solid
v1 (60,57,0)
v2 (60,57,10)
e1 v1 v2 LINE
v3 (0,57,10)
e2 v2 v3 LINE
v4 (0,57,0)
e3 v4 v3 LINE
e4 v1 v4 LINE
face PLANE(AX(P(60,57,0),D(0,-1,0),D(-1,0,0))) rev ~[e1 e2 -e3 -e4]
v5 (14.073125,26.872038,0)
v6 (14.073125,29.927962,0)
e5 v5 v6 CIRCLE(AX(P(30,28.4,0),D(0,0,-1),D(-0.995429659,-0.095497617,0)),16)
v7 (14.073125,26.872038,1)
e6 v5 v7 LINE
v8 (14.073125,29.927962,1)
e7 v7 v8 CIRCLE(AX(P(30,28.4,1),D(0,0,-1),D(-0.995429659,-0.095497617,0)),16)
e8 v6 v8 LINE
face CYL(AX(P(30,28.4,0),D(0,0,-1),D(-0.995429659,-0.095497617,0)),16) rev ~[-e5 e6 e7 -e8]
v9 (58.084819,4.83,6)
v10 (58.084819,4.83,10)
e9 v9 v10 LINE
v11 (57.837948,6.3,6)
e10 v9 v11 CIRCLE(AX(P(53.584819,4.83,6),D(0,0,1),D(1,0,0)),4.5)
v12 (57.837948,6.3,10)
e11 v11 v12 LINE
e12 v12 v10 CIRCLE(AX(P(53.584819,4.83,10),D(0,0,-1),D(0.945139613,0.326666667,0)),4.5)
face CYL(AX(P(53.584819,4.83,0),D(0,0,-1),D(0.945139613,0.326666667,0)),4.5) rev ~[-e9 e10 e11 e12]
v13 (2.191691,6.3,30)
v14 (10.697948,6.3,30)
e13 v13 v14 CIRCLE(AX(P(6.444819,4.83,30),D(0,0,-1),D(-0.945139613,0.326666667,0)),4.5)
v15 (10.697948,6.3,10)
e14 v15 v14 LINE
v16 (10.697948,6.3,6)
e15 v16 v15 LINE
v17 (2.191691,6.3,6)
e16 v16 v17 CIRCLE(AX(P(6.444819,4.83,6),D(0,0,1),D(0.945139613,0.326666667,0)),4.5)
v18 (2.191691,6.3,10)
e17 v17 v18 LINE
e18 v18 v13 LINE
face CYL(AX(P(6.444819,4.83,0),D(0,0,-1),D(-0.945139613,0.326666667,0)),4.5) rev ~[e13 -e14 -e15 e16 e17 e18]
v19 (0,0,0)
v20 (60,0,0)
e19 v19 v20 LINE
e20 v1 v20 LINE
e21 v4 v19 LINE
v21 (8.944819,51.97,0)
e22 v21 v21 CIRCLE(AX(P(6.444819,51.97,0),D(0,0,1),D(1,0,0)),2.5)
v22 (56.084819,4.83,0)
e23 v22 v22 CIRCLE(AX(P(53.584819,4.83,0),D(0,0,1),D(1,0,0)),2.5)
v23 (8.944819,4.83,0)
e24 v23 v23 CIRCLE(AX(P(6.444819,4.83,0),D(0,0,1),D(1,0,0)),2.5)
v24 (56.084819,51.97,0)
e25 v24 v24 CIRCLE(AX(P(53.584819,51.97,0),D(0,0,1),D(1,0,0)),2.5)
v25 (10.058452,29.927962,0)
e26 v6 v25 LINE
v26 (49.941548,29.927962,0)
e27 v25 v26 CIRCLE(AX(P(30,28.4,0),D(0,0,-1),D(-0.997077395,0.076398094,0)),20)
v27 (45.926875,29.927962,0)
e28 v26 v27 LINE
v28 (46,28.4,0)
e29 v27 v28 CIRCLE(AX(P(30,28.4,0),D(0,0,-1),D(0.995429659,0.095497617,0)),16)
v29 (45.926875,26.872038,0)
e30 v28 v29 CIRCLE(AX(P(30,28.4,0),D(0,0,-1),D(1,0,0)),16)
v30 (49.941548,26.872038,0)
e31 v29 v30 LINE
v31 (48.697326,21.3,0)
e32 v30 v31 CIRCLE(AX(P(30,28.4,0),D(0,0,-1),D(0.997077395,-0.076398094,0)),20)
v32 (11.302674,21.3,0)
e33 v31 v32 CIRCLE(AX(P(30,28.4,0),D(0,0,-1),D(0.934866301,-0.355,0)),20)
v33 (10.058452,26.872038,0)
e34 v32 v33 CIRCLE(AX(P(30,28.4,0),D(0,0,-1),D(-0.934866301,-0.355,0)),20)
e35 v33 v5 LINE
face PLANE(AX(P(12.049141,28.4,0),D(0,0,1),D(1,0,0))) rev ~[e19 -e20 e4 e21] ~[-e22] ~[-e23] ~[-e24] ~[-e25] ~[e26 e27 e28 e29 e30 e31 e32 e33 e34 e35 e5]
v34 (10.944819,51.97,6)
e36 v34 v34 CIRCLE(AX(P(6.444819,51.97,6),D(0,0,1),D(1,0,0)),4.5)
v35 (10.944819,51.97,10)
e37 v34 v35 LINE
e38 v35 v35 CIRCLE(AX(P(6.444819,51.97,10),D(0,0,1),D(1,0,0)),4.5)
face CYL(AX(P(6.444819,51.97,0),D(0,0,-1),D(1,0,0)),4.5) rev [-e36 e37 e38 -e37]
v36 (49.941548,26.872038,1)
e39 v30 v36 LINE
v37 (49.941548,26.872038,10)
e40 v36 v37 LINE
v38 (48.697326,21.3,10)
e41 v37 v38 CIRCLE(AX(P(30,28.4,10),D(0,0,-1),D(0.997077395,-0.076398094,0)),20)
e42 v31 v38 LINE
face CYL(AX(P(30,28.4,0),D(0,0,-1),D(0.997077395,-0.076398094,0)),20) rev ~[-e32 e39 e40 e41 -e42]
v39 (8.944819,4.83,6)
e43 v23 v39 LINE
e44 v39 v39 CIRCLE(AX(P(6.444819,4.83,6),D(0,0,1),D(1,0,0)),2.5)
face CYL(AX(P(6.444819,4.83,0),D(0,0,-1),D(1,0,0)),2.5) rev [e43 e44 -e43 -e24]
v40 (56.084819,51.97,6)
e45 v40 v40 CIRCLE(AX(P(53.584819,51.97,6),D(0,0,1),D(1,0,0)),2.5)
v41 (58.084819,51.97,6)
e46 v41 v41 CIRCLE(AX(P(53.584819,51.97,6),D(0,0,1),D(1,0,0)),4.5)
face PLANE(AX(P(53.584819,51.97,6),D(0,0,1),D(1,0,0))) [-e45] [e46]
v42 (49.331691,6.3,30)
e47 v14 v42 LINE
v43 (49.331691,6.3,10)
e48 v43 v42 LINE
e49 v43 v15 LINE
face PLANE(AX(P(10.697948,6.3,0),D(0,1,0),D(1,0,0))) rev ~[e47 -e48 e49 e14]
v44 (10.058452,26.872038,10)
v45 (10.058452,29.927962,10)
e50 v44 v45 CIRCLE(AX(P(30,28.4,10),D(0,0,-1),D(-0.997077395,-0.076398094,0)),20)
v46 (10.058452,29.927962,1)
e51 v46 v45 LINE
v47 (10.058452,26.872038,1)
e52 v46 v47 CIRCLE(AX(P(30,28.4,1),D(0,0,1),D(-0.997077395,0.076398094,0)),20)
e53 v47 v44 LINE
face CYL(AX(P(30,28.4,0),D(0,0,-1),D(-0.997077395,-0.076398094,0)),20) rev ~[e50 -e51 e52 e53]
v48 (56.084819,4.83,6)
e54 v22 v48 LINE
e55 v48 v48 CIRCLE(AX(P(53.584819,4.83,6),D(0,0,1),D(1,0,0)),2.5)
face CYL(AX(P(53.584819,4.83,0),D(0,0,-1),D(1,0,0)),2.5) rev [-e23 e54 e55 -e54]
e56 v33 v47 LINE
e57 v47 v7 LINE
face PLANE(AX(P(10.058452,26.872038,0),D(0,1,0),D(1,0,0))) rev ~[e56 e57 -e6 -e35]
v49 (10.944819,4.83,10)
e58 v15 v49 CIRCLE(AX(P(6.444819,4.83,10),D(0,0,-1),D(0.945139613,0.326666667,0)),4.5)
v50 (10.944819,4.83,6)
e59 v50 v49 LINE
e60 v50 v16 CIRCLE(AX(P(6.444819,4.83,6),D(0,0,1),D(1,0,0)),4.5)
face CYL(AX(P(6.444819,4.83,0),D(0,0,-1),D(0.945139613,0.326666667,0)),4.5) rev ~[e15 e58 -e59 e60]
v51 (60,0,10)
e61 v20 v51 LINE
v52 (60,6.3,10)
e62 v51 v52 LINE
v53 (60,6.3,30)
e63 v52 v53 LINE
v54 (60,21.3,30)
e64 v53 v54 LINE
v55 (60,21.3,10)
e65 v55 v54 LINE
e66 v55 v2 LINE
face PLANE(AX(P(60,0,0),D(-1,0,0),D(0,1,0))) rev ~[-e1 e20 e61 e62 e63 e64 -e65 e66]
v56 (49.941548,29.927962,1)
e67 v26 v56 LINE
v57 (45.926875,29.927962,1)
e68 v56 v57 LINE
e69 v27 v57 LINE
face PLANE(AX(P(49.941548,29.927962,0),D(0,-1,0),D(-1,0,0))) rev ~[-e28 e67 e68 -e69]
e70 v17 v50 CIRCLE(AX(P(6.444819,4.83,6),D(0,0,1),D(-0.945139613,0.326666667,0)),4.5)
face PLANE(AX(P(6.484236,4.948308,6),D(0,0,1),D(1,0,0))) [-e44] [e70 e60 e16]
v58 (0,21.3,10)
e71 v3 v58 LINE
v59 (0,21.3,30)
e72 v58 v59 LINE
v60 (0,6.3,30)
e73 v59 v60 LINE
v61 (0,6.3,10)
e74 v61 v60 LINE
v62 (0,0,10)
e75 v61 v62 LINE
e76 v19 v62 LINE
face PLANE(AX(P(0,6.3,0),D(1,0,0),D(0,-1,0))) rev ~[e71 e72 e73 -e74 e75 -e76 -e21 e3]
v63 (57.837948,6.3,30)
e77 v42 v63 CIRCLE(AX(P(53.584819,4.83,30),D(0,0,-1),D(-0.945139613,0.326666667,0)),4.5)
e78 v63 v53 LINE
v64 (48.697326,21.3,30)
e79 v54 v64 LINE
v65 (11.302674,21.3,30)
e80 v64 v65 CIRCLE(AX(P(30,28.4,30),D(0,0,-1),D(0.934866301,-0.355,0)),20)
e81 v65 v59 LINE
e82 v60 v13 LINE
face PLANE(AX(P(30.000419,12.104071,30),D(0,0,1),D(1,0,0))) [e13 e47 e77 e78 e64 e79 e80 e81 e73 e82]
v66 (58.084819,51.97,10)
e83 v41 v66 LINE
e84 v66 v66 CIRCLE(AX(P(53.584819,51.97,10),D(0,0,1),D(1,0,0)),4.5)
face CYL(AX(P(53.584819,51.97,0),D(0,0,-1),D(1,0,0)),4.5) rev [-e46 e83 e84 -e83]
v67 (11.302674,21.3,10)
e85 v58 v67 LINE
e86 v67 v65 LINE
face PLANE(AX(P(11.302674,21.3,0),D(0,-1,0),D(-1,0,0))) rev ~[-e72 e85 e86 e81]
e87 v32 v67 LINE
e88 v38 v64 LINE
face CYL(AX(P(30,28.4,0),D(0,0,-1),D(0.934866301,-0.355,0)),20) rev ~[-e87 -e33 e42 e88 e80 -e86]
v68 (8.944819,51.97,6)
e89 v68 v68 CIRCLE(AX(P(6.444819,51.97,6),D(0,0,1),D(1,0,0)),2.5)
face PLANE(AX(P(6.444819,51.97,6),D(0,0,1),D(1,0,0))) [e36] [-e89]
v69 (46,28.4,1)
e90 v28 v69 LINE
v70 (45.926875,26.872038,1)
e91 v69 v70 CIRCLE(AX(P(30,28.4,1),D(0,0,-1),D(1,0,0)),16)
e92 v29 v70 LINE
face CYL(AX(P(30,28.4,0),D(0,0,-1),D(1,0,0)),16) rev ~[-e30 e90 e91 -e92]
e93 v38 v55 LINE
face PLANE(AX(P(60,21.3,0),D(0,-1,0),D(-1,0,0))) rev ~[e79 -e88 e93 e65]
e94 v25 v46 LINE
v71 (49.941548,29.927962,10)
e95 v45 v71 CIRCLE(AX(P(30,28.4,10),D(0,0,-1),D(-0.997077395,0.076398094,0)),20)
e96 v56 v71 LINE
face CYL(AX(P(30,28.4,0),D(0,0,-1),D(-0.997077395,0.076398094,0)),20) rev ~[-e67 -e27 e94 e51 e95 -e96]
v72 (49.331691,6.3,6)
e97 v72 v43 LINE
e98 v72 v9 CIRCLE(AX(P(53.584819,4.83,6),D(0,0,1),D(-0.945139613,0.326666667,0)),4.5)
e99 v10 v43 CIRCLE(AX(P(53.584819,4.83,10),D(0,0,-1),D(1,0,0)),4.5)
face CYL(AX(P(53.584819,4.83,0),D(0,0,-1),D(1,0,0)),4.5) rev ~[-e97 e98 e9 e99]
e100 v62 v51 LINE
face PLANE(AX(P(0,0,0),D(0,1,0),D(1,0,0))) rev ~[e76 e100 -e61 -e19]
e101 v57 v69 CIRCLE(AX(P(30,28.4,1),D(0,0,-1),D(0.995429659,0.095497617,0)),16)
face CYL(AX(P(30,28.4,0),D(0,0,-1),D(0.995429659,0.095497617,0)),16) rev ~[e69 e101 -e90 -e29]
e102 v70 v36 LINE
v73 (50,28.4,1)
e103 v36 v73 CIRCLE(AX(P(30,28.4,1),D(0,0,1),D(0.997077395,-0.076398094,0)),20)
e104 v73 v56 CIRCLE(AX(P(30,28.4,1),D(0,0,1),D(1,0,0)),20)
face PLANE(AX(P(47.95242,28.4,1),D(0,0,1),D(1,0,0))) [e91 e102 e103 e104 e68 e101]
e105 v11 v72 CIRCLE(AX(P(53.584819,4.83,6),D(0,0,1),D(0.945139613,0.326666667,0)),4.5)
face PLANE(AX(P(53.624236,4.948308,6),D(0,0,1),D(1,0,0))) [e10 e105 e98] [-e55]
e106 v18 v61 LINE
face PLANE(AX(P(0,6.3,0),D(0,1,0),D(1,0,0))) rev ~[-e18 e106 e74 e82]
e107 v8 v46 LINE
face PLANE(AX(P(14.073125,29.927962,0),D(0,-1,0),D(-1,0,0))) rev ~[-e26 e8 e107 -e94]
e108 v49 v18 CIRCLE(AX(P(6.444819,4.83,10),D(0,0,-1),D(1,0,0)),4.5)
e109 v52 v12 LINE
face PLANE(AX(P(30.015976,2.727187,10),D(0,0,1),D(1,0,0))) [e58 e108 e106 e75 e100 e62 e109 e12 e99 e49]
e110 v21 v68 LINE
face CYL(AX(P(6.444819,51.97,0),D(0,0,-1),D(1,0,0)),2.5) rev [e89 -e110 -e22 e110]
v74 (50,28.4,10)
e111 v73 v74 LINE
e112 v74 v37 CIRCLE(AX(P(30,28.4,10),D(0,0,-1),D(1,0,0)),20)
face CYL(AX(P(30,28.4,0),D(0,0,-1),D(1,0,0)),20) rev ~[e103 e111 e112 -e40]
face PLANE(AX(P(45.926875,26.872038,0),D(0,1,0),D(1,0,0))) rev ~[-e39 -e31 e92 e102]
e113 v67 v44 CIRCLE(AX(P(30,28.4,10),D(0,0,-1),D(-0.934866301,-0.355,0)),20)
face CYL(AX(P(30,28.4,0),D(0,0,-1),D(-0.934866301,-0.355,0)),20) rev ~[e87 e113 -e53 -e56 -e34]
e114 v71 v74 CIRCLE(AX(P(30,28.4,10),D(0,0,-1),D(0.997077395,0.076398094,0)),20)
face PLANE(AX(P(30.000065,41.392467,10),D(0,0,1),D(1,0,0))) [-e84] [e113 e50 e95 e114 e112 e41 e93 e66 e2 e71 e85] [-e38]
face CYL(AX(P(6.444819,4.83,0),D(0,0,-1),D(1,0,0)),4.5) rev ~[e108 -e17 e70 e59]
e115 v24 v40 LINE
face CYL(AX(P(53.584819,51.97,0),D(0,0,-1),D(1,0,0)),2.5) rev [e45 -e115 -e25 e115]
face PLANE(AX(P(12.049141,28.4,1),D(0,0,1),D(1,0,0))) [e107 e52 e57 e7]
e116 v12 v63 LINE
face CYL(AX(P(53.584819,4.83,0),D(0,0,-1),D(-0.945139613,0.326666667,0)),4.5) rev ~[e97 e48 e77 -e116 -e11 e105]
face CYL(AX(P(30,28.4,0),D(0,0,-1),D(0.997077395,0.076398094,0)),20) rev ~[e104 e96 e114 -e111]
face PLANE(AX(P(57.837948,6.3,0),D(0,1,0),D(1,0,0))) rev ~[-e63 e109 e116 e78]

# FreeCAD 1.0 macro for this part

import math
import FreeCAD as App
import Part
import Sketcher
Q = App.Units.Quantity

doc = App.newDocument("Part")
params = doc.addObject("Spreadsheet::Sheet", "Params")
for row, (alias, value) in enumerate([
    ("sketch1_diameter", "9 mm"),
    ("sketch1_radius", "20 mm"),
    ("sketch1_width", "60 mm"),
    ("sketch1_height", "35.7 mm"),
    ("pad1_length", "10 mm"),
    ("sketch2_radius", "20 mm"),
    ("sketch2_radius2", "4.5 mm"),
    ("sketch2_height", "15 mm"),
    ("pad2_length", "30 mm"),
    ("sketch3_radius", "4.5 mm"),
    ("sketch3_width", "60 mm"),
    ("sketch3_height", "6.3 mm"),
    ("pad3_length", "10 mm"),
    ("sketch4_diameter", "5 mm"),
    ("sketch4_radius", "4.5 mm"),
    ("pad4_length", "6 mm"),
    ("sketch5_diameter", "5 mm"),
    ("sketch5_radius", "4.5 mm"),
    ("pad5_length", "6 mm"),
    ("sketch6_diameter", "9 mm"),
    ("sketch6_diameter2", "5 mm"),
    ("pad6_length", "6 mm"),
    ("sketch7_radius", "20 mm"),
    ("sketch7_radius2", "16 mm"),
    ("pad7_length", "1 mm"),
], start=1):
    params.set(f"A{row}", alias)
    params.set(f"B{row}", "=" + value)
    params.setAlias(f"B{row}", alias)

body = doc.addObject("PartDesign::Body", "Body")

sketch1 = body.newObject("Sketcher::SketchObject", "Sketch")
sketch1.AttachmentSupport = (doc.getObject("XY_Plane"), [""])
sketch1.MapMode = "FlatFace"
sketch1.addGeometry(Part.LineSegment(App.Vector(0, 57, 0), App.Vector(0, 21.3, 0)), False)
sketch1.addGeometry(Part.LineSegment(App.Vector(0, 21.3, 0), App.Vector(11.302674, 21.3, 0)), False)
sketch1.addGeometry(Part.ArcOfCircle(Part.Circle(App.Vector(30, 28.4, 0), App.Vector(0, 0, 1), 20), math.radians(-175.618442), math.radians(-159.206556)), False)
sketch1.addGeometry(Part.ArcOfCircle(Part.Circle(App.Vector(30, 28.4, 0), App.Vector(0, 0, 1), 20), math.radians(175.618442), math.radians(184.381558)), False)
sketch1.addGeometry(Part.ArcOfCircle(Part.Circle(App.Vector(30, 28.4, 0), App.Vector(0, 0, 1), 20), math.radians(4.381558), math.radians(175.618442)), False)
sketch1.addGeometry(Part.ArcOfCircle(Part.Circle(App.Vector(30, 28.4, 0), App.Vector(0, 0, 1), 20), math.radians(0), math.radians(4.381558)), False)
sketch1.addGeometry(Part.ArcOfCircle(Part.Circle(App.Vector(30, 28.4, 0), App.Vector(0, 0, 1), 20), math.radians(-4.381558), math.radians(0)), False)
sketch1.addGeometry(Part.ArcOfCircle(Part.Circle(App.Vector(30, 28.4, 0), App.Vector(0, 0, 1), 20), math.radians(-20.793444), math.radians(-4.381558)), False)
sketch1.addGeometry(Part.LineSegment(App.Vector(48.697326, 21.3, 0), App.Vector(60, 21.3, 0)), False)
sketch1.addGeometry(Part.LineSegment(App.Vector(60, 21.3, 0), App.Vector(60, 57, 0)), False)
sketch1.addGeometry(Part.LineSegment(App.Vector(60, 57, 0), App.Vector(0, 57, 0)), False)
sketch1.addGeometry(Part.Circle(App.Vector(6.444819, 51.97, 0), App.Vector(0, 0, 1), 4.5), False)
sketch1.addGeometry(Part.Circle(App.Vector(53.584819, 51.97, 0), App.Vector(0, 0, 1), 4.5), False)
sketch1.addConstraint(Sketcher.Constraint("Coincident", 0, 2, 1, 1))
sketch1.addConstraint(Sketcher.Constraint("Coincident", 1, 2, 2, 2))
sketch1.addConstraint(Sketcher.Constraint("Tangent", 2, 1, 3, 2))
sketch1.addConstraint(Sketcher.Constraint("Tangent", 3, 1, 4, 2))
sketch1.addConstraint(Sketcher.Constraint("Tangent", 4, 1, 5, 2))
sketch1.addConstraint(Sketcher.Constraint("Tangent", 5, 1, 6, 2))
sketch1.addConstraint(Sketcher.Constraint("Tangent", 6, 1, 7, 2))
sketch1.addConstraint(Sketcher.Constraint("Coincident", 7, 1, 8, 1))
sketch1.addConstraint(Sketcher.Constraint("Coincident", 8, 2, 9, 1))
sketch1.addConstraint(Sketcher.Constraint("Coincident", 9, 2, 10, 1))
sketch1.addConstraint(Sketcher.Constraint("Coincident", 10, 2, 0, 1))
sketch1.addConstraint(Sketcher.Constraint("Vertical", 0))
sketch1.addConstraint(Sketcher.Constraint("Horizontal", 1))
sketch1.addConstraint(Sketcher.Constraint("Horizontal", 8))
sketch1.addConstraint(Sketcher.Constraint("Vertical", 9))
sketch1.addConstraint(Sketcher.Constraint("Horizontal", 10))
sketch1.addConstraint(Sketcher.Constraint("Coincident", 4, 3, 2, 3))
sketch1.addConstraint(Sketcher.Constraint("Coincident", 6, 3, 2, 3))
sketch1.addConstraint(Sketcher.Constraint("Equal", 6, 7))
sketch1.addConstraint(Sketcher.Constraint("Equal", 11, 12))
sketch1.addConstraint(Sketcher.Constraint("PointOnObject", 0, 2, -2))
sketch1.addConstraint(Sketcher.Constraint("Horizontal", 11, 3, 12, 3))
sketch1.addConstraint(Sketcher.Constraint("Horizontal", 3, 1, 4, 1))
sketch1.addConstraint(Sketcher.Constraint("Horizontal", 7, 3, 5, 1))
sketch1.addConstraint(Sketcher.Constraint("Horizontal", 2, 1, 6, 1))
sketch1.addConstraint(Sketcher.Constraint("Horizontal", 1, 2, 7, 1))
sketch1.addConstraint(Sketcher.Constraint("Vertical", 2, 1, 3, 1))
sketch1.addConstraint(Sketcher.Constraint("Equal", 1, 8))
sketch1.addConstraint(Sketcher.Constraint("Diameter", 11, Q("9 mm")))
sketch1.addConstraint(Sketcher.Constraint("Radius", 2, Q("20 mm")))
sketch1.addConstraint(Sketcher.Constraint("DistanceX", 10, 2, 10, 1, Q("60 mm")))
sketch1.addConstraint(Sketcher.Constraint("DistanceY", 0, 2, 0, 1, Q("35.7 mm")))
sketch1.addConstraint(Sketcher.Constraint("DistanceY", -1, 1, 9, 2, Q("57 mm")))
sketch1.addConstraint(Sketcher.Constraint("DistanceY", -1, 1, 2, 3, Q("28.4 mm")))
sketch1.addConstraint(Sketcher.Constraint("DistanceY", -1, 1, 11, 3, Q("51.97 mm")))
sketch1.addConstraint(Sketcher.Constraint("DistanceX", -1, 1, 11, 3, Q("6.444819 mm")))
sketch1.addConstraint(Sketcher.Constraint("DistanceX", -1, 1, 12, 3, Q("53.584819 mm")))
sketch1.addConstraint(Sketcher.Constraint("DistanceY", -1, 1, 2, 1, Q("26.872038 mm")))
sketch1.setExpression("Constraints[28]", "Params.sketch1_diameter")
sketch1.setExpression("Constraints[29]", "Params.sketch1_radius")
sketch1.setExpression("Constraints[30]", "Params.sketch1_width")
sketch1.setExpression("Constraints[31]", "Params.sketch1_height")
pad1 = body.newObject("PartDesign::Pad", "Pad")
pad1.Profile = sketch1
pad1.setExpression("Length", "Params.pad1_length")

sketch2 = body.newObject("Sketcher::SketchObject", "Sketch001")
sketch2.AttachmentSupport = (doc.getObject("XY_Plane"), [""])
sketch2.MapMode = "FlatFace"
sketch2.addGeometry(Part.LineSegment(App.Vector(0, 21.3, 0), App.Vector(0, 6.3, 0)), False)
sketch2.addGeometry(Part.LineSegment(App.Vector(0, 6.3, 0), App.Vector(2.191691, 6.3, 0)), False)
sketch2.addGeometry(Part.ArcOfCircle(Part.Circle(App.Vector(6.444819, 4.83, 0), App.Vector(0, 0, 1), 4.5), math.radians(19.06658), math.radians(160.93342)), False)
sketch2.addGeometry(Part.LineSegment(App.Vector(10.697948, 6.3, 0), App.Vector(49.331691, 6.3, 0)), False)
sketch2.addGeometry(Part.ArcOfCircle(Part.Circle(App.Vector(53.584819, 4.83, 0), App.Vector(0, 0, 1), 4.5), math.radians(19.06658), math.radians(160.93342)), False)
sketch2.addGeometry(Part.LineSegment(App.Vector(57.837948, 6.3, 0), App.Vector(60, 6.3, 0)), False)
sketch2.addGeometry(Part.LineSegment(App.Vector(60, 6.3, 0), App.Vector(60, 21.3, 0)), False)
sketch2.addGeometry(Part.LineSegment(App.Vector(60, 21.3, 0), App.Vector(48.697326, 21.3, 0)), False)
sketch2.addGeometry(Part.ArcOfCircle(Part.Circle(App.Vector(30, 28.4, 0), App.Vector(0, 0, 1), 20), math.radians(-159.206556), math.radians(-20.793444)), False)
sketch2.addGeometry(Part.LineSegment(App.Vector(11.302674, 21.3, 0), App.Vector(0, 21.3, 0)), False)
sketch2.addConstraint(Sketcher.Constraint("Coincident", 0, 2, 1, 1))
sketch2.addConstraint(Sketcher.Constraint("Coincident", 1, 2, 2, 2))
sketch2.addConstraint(Sketcher.Constraint("Coincident", 2, 1, 3, 1))
sketch2.addConstraint(Sketcher.Constraint("Coincident", 3, 2, 4, 2))
sketch2.addConstraint(Sketcher.Constraint("Coincident", 4, 1, 5, 1))
sketch2.addConstraint(Sketcher.Constraint("Coincident", 5, 2, 6, 1))
sketch2.addConstraint(Sketcher.Constraint("Coincident", 6, 2, 7, 1))
sketch2.addConstraint(Sketcher.Constraint("Coincident", 7, 2, 8, 2))
sketch2.addConstraint(Sketcher.Constraint("Coincident", 8, 1, 9, 1))
sketch2.addConstraint(Sketcher.Constraint("Coincident", 9, 2, 0, 1))
sketch2.addConstraint(Sketcher.Constraint("Vertical", 0))
sketch2.addConstraint(Sketcher.Constraint("Horizontal", 1))
sketch2.addConstraint(Sketcher.Constraint("Horizontal", 3))
sketch2.addConstraint(Sketcher.Constraint("Horizontal", 5))
sketch2.addConstraint(Sketcher.Constraint("Vertical", 6))
sketch2.addConstraint(Sketcher.Constraint("Horizontal", 7))
sketch2.addConstraint(Sketcher.Constraint("Horizontal", 9))
sketch2.addConstraint(Sketcher.Constraint("Equal", 2, 4))
sketch2.addConstraint(Sketcher.Constraint("PointOnObject", 0, 2, -2))
sketch2.addConstraint(Sketcher.Constraint("Horizontal", 2, 3, 4, 3))
sketch2.addConstraint(Sketcher.Constraint("Horizontal", 1, 2, 2, 1))
sketch2.addConstraint(Sketcher.Constraint("Horizontal", 3, 2, 4, 1))
sketch2.addConstraint(Sketcher.Constraint("Horizontal", 7, 2, 8, 1))
sketch2.addConstraint(Sketcher.Constraint("Equal", 7, 9))
sketch2.addConstraint(Sketcher.Constraint("Radius", 8, Q("20 mm")))
sketch2.addConstraint(Sketcher.Constraint("Radius", 2, Q("4.5 mm")))
sketch2.addConstraint(Sketcher.Constraint("DistanceY", 0, 2, 0, 1, Q("15 mm")))
sketch2.addConstraint(Sketcher.Constraint("DistanceX", -1, 1, 8, 3, Q("30 mm")))
sketch2.addConstraint(Sketcher.Constraint("DistanceY", -1, 1, 8, 3, Q("28.4 mm")))
sketch2.addConstraint(Sketcher.Constraint("DistanceY", -1, 1, 0, 2, Q("6.3 mm")))
sketch2.addConstraint(Sketcher.Constraint("DistanceY", -1, 1, 2, 3, Q("4.83 mm")))
sketch2.addConstraint(Sketcher.Constraint("DistanceX", 2, 3, 4, 3, Q("47.14 mm")))
sketch2.addConstraint(Sketcher.Constraint("DistanceX", 1, 1, 1, 2, Q("2.191691 mm")))
sketch2.setExpression("Constraints[24]", "Params.sketch2_radius")
sketch2.setExpression("Constraints[25]", "Params.sketch2_radius2")
sketch2.setExpression("Constraints[26]", "Params.sketch2_height")
pad2 = body.newObject("PartDesign::Pad", "Pad001")
pad2.Profile = sketch2
pad2.setExpression("Length", "Params.pad2_length")

sketch3 = body.newObject("Sketcher::SketchObject", "Sketch002")
sketch3.AttachmentSupport = (doc.getObject("XY_Plane"), [""])
sketch3.MapMode = "FlatFace"
sketch3.addGeometry(Part.LineSegment(App.Vector(0, 6.3, 0), App.Vector(0, 0, 0)), False)
sketch3.addGeometry(Part.LineSegment(App.Vector(0, 0, 0), App.Vector(60, 0, 0)), False)
sketch3.addGeometry(Part.LineSegment(App.Vector(60, 0, 0), App.Vector(60, 6.3, 0)), False)
sketch3.addGeometry(Part.LineSegment(App.Vector(60, 6.3, 0), App.Vector(57.837948, 6.3, 0)), False)
sketch3.addGeometry(Part.ArcOfCircle(Part.Circle(App.Vector(53.584819, 4.83, 0), App.Vector(0, 0, 1), 4.5), math.radians(0), math.radians(19.06658)), False)
sketch3.addGeometry(Part.ArcOfCircle(Part.Circle(App.Vector(53.584819, 4.83, 0), App.Vector(0, 0, 1), 4.5), math.radians(160.93342), math.radians(360)), False)
sketch3.addGeometry(Part.LineSegment(App.Vector(49.331691, 6.3, 0), App.Vector(10.697948, 6.3, 0)), False)
sketch3.addGeometry(Part.ArcOfCircle(Part.Circle(App.Vector(6.444819, 4.83, 0), App.Vector(0, 0, 1), 4.5), math.radians(0), math.radians(19.06658)), False)
sketch3.addGeometry(Part.ArcOfCircle(Part.Circle(App.Vector(6.444819, 4.83, 0), App.Vector(0, 0, 1), 4.5), math.radians(160.93342), math.radians(360)), False)
sketch3.addGeometry(Part.LineSegment(App.Vector(2.191691, 6.3, 0), App.Vector(0, 6.3, 0)), False)
sketch3.addConstraint(Sketcher.Constraint("Coincident", 0, 2, 1, 1))
sketch3.addConstraint(Sketcher.Constraint("Coincident", 1, 2, 2, 1))
sketch3.addConstraint(Sketcher.Constraint("Coincident", 2, 2, 3, 1))
sketch3.addConstraint(Sketcher.Constraint("Coincident", 3, 2, 4, 2))
sketch3.addConstraint(Sketcher.Constraint("Tangent", 4, 1, 5, 2))
sketch3.addConstraint(Sketcher.Constraint("Coincident", 5, 1, 6, 1))
sketch3.addConstraint(Sketcher.Constraint("Coincident", 6, 2, 7, 2))
sketch3.addConstraint(Sketcher.Constraint("Tangent", 7, 1, 8, 2))
sketch3.addConstraint(Sketcher.Constraint("Coincident", 8, 1, 9, 1))
sketch3.addConstraint(Sketcher.Constraint("Coincident", 9, 2, 0, 1))
sketch3.addConstraint(Sketcher.Constraint("Vertical", 0))
sketch3.addConstraint(Sketcher.Constraint("Horizontal", 1))
sketch3.addConstraint(Sketcher.Constraint("Vertical", 2))
sketch3.addConstraint(Sketcher.Constraint("Horizontal", 3))
sketch3.addConstraint(Sketcher.Constraint("Horizontal", 6))
sketch3.addConstraint(Sketcher.Constraint("Horizontal", 9))
sketch3.addConstraint(Sketcher.Constraint("Coincident", 0, 2, -1, 1))
sketch3.addConstraint(Sketcher.Constraint("Equal", 4, 5))
sketch3.addConstraint(Sketcher.Constraint("Equal", 5, 7))
sketch3.addConstraint(Sketcher.Constraint("Equal", 7, 8))
sketch3.addConstraint(Sketcher.Constraint("Horizontal", 5, 3, 7, 3))
sketch3.addConstraint(Sketcher.Constraint("Horizontal", 8, 3, 4, 1))
sketch3.addConstraint(Sketcher.Constraint("Horizontal", 3, 2, 5, 1))
sketch3.addConstraint(Sketcher.Constraint("Horizontal", 4, 1, 7, 1))
sketch3.addConstraint(Sketcher.Constraint("Horizontal", 6, 2, 8, 1))
sketch3.addConstraint(Sketcher.Constraint("Radius", 4, Q("4.5 mm")))
sketch3.addConstraint(Sketcher.Constraint("DistanceX", 1, 1, 1, 2, Q("60 mm")))
sketch3.addConstraint(Sketcher.Constraint("DistanceY", 0, 2, 0, 1, Q("6.3 mm")))
sketch3.addConstraint(Sketcher.Constraint("DistanceY", -1, 1, 4, 3, Q("4.83 mm")))
sketch3.addConstraint(Sketcher.Constraint("DistanceX", 7, 3, 4, 3, Q("47.14 mm")))
sketch3.addConstraint(Sketcher.Constraint("DistanceX", 9, 2, 9, 1, Q("2.191691 mm")))
sketch3.setExpression("Constraints[25]", "Params.sketch3_radius")
sketch3.setExpression("Constraints[26]", "Params.sketch3_width")
sketch3.setExpression("Constraints[27]", "Params.sketch3_height")
pad3 = body.newObject("PartDesign::Pad", "Pad002")
pad3.Profile = sketch3
pad3.setExpression("Length", "Params.pad3_length")

sketch4 = body.newObject("Sketcher::SketchObject", "Sketch003")
sketch4.AttachmentSupport = (doc.getObject("XY_Plane"), [""])
sketch4.MapMode = "FlatFace"
sketch4.addGeometry(Part.ArcOfCircle(Part.Circle(App.Vector(6.444819, 4.83, 0), App.Vector(0, 0, 1), 4.5), math.radians(19.06658), math.radians(160.93342)), False)
sketch4.addGeometry(Part.ArcOfCircle(Part.Circle(App.Vector(6.444819, 4.83, 0), App.Vector(0, 0, 1), 4.5), math.radians(160.93342), math.radians(360)), False)
sketch4.addGeometry(Part.ArcOfCircle(Part.Circle(App.Vector(6.444819, 4.83, 0), App.Vector(0, 0, 1), 4.5), math.radians(0), math.radians(19.06658)), False)
sketch4.addGeometry(Part.Circle(App.Vector(6.444819, 4.83, 0), App.Vector(0, 0, 1), 2.5), False)
sketch4.addConstraint(Sketcher.Constraint("Tangent", 0, 2, 1, 1))
sketch4.addConstraint(Sketcher.Constraint("Tangent", 1, 2, 2, 1))
sketch4.addConstraint(Sketcher.Constraint("Tangent", 2, 2, 0, 1))
sketch4.addConstraint(Sketcher.Constraint("Coincident", 3, 3, 0, 3))
sketch4.addConstraint(Sketcher.Constraint("Horizontal", 3, 3, 1, 2))
sketch4.addConstraint(Sketcher.Constraint("Horizontal", 0, 2, 2, 2))
sketch4.addConstraint(Sketcher.Constraint("Diameter", 3, Q("5 mm")))
sketch4.addConstraint(Sketcher.Constraint("Radius", 0, Q("4.5 mm")))
sketch4.addConstraint(Sketcher.Constraint("DistanceY", -1, 1, 0, 2, Q("6.3 mm")))
sketch4.addConstraint(Sketcher.Constraint("DistanceY", -1, 1, 0, 3, Q("4.83 mm")))
sketch4.addConstraint(Sketcher.Constraint("DistanceX", -1, 1, 0, 3, Q("6.444819 mm")))
sketch4.setExpression("Constraints[6]", "Params.sketch4_diameter")
sketch4.setExpression("Constraints[7]", "Params.sketch4_radius")
pad4 = body.newObject("PartDesign::Pad", "Pad003")
pad4.Profile = sketch4
pad4.setExpression("Length", "Params.pad4_length")

sketch5 = body.newObject("Sketcher::SketchObject", "Sketch004")
sketch5.AttachmentSupport = (doc.getObject("XY_Plane"), [""])
sketch5.MapMode = "FlatFace"
sketch5.addGeometry(Part.ArcOfCircle(Part.Circle(App.Vector(53.584819, 4.83, 0), App.Vector(0, 0, 1), 4.5), math.radians(0), math.radians(19.06658)), False)
sketch5.addGeometry(Part.ArcOfCircle(Part.Circle(App.Vector(53.584819, 4.83, 0), App.Vector(0, 0, 1), 4.5), math.radians(19.06658), math.radians(160.93342)), False)
sketch5.addGeometry(Part.ArcOfCircle(Part.Circle(App.Vector(53.584819, 4.83, 0), App.Vector(0, 0, 1), 4.5), math.radians(160.93342), math.radians(360)), False)
sketch5.addGeometry(Part.Circle(App.Vector(53.584819, 4.83, 0), App.Vector(0, 0, 1), 2.5), False)
sketch5.addConstraint(Sketcher.Constraint("Tangent", 0, 2, 1, 1))
sketch5.addConstraint(Sketcher.Constraint("Tangent", 1, 2, 2, 1))
sketch5.addConstraint(Sketcher.Constraint("Tangent", 2, 2, 0, 1))
sketch5.addConstraint(Sketcher.Constraint("Coincident", 3, 3, 0, 3))
sketch5.addConstraint(Sketcher.Constraint("Horizontal", 0, 2, 1, 2))
sketch5.addConstraint(Sketcher.Constraint("Horizontal", 3, 3, 2, 2))
sketch5.addConstraint(Sketcher.Constraint("Diameter", 3, Q("5 mm")))
sketch5.addConstraint(Sketcher.Constraint("Radius", 0, Q("4.5 mm")))
sketch5.addConstraint(Sketcher.Constraint("DistanceY", -1, 1, 0, 2, Q("6.3 mm")))
sketch5.addConstraint(Sketcher.Constraint("DistanceY", -1, 1, 0, 3, Q("4.83 mm")))
sketch5.addConstraint(Sketcher.Constraint("DistanceX", -1, 1, 0, 3, Q("53.584819 mm")))
sketch5.setExpression("Constraints[6]", "Params.sketch5_diameter")
sketch5.setExpression("Constraints[7]", "Params.sketch5_radius")
pad5 = body.newObject("PartDesign::Pad", "Pad004")
pad5.Profile = sketch5
pad5.setExpression("Length", "Params.pad5_length")

sketch6 = body.newObject("Sketcher::SketchObject", "Sketch005")
sketch6.AttachmentSupport = (doc.getObject("XY_Plane"), [""])
sketch6.MapMode = "FlatFace"
sketch6.addGeometry(Part.Circle(App.Vector(6.444819, 51.97, 0), App.Vector(0, 0, 1), 4.5), False)
sketch6.addGeometry(Part.Circle(App.Vector(6.444819, 51.97, 0), App.Vector(0, 0, 1), 2.5), False)
sketch6.addGeometry(Part.Circle(App.Vector(53.584819, 51.97, 0), App.Vector(0, 0, 1), 4.5), False)
sketch6.addGeometry(Part.Circle(App.Vector(53.584819, 51.97, 0), App.Vector(0, 0, 1), 2.5), False)
sketch6.addConstraint(Sketcher.Constraint("Coincident", 1, 3, 0, 3))
sketch6.addConstraint(Sketcher.Constraint("Coincident", 3, 3, 2, 3))
sketch6.addConstraint(Sketcher.Constraint("Equal", 0, 2))
sketch6.addConstraint(Sketcher.Constraint("Equal", 1, 3))
sketch6.addConstraint(Sketcher.Constraint("Horizontal", 1, 3, 2, 3))
sketch6.addConstraint(Sketcher.Constraint("Diameter", 0, Q("9 mm")))
sketch6.addConstraint(Sketcher.Constraint("Diameter", 1, Q("5 mm")))
sketch6.addConstraint(Sketcher.Constraint("DistanceY", -1, 1, 0, 3, Q("51.97 mm")))
sketch6.addConstraint(Sketcher.Constraint("DistanceX", 0, 3, 2, 3, Q("47.14 mm")))
sketch6.addConstraint(Sketcher.Constraint("DistanceX", -1, 1, 0, 3, Q("6.444819 mm")))
sketch6.setExpression("Constraints[5]", "Params.sketch6_diameter")
sketch6.setExpression("Constraints[6]", "Params.sketch6_diameter2")
pad6 = body.newObject("PartDesign::Pad", "Pad005")
pad6.Profile = sketch6
pad6.setExpression("Length", "Params.pad6_length")

sketch7 = body.newObject("Sketcher::SketchObject", "Sketch006")
sketch7.AttachmentSupport = (doc.getObject("XY_Plane"), [""])
sketch7.MapMode = "FlatFace"
sketch7.addGeometry(Part.ArcOfCircle(Part.Circle(App.Vector(30, 28.4, 0), App.Vector(0, 0, 1), 20), math.radians(175.618442), math.radians(184.381558)), False)
sketch7.addGeometry(Part.LineSegment(App.Vector(10.058452, 26.872038, 0), App.Vector(14.073125, 26.872038, 0)), False)
sketch7.addGeometry(Part.ArcOfCircle(Part.Circle(App.Vector(30, 28.4, 0), App.Vector(0, 0, 1), 16), math.radians(174.520039), math.radians(185.479961)), False)
sketch7.addGeometry(Part.LineSegment(App.Vector(14.073125, 29.927962, 0), App.Vector(10.058452, 29.927962, 0)), False)
sketch7.addGeometry(Part.LineSegment(App.Vector(45.926875, 26.872038, 0), App.Vector(49.941548, 26.872038, 0)), False)
sketch7.addGeometry(Part.ArcOfCircle(Part.Circle(App.Vector(30, 28.4, 0), App.Vector(0, 0, 1), 20), math.radians(-4.381558), math.radians(0)), False)
sketch7.addGeometry(Part.ArcOfCircle(Part.Circle(App.Vector(30, 28.4, 0), App.Vector(0, 0, 1), 20), math.radians(0), math.radians(4.381558)), False)
sketch7.addGeometry(Part.LineSegment(App.Vector(49.941548, 29.927962, 0), App.Vector(45.926875, 29.927962, 0)), False)
sketch7.addGeometry(Part.ArcOfCircle(Part.Circle(App.Vector(30, 28.4, 0), App.Vector(0, 0, 1), 16), math.radians(0), math.radians(5.479961)), False)
sketch7.addGeometry(Part.ArcOfCircle(Part.Circle(App.Vector(30, 28.4, 0), App.Vector(0, 0, 1), 16), math.radians(-5.479961), math.radians(0)), False)
sketch7.addConstraint(Sketcher.Constraint("Coincident", 0, 2, 1, 1))
sketch7.addConstraint(Sketcher.Constraint("Coincident", 1, 2, 2, 2))
sketch7.addConstraint(Sketcher.Constraint("Coincident", 2, 1, 3, 1))
sketch7.addConstraint(Sketcher.Constraint("Coincident", 3, 2, 0, 1))
sketch7.addConstraint(Sketcher.Constraint("Coincident", 4, 2, 5, 1))
sketch7.addConstraint(Sketcher.Constraint("Tangent", 5, 2, 6, 1))
sketch7.addConstraint(Sketcher.Constraint("Coincident", 6, 2, 7, 1))
sketch7.addConstraint(Sketcher.Constraint("Coincident", 7, 2, 8, 2))
sketch7.addConstraint(Sketcher.Constraint("Tangent", 8, 1, 9, 2))
sketch7.addConstraint(Sketcher.Constraint("Coincident", 9, 1, 4, 1))
sketch7.addConstraint(Sketcher.Constraint("Horizontal", 1))
sketch7.addConstraint(Sketcher.Constraint("Horizontal", 3))
sketch7.addConstraint(Sketcher.Constraint("Horizontal", 4))
sketch7.addConstraint(Sketcher.Constraint("Horizontal", 7))
sketch7.addConstraint(Sketcher.Constraint("Coincident", 2, 3, 0, 3))
sketch7.addConstraint(Sketcher.Constraint("Coincident", 5, 3, 0, 3))
sketch7.addConstraint(Sketcher.Constraint("Coincident", 8, 3, 0, 3))
sketch7.addConstraint(Sketcher.Constraint("Equal", 0, 5))
sketch7.addConstraint(Sketcher.Constraint("Equal", 5, 6))
sketch7.addConstraint(Sketcher.Constraint("Equal", 2, 8))
sketch7.addConstraint(Sketcher.Constraint("Equal", 8, 9))
sketch7.addConstraint(Sketcher.Constraint("Horizontal", 1, 2, 4, 2))
sketch7.addConstraint(Sketcher.Constraint("Horizontal", 9, 3, 5, 2))
sketch7.addConstraint(Sketcher.Constraint("Horizontal", 3, 2, 6, 2))
sketch7.addConstraint(Sketcher.Constraint("Horizontal", 5, 2, 8, 1))
sketch7.addConstraint(Sketcher.Constraint("Vertical", 1, 2, 2, 1))
sketch7.addConstraint(Sketcher.Constraint("Radius", 0, Q("20 mm")))
sketch7.addConstraint(Sketcher.Constraint("Radius", 2, Q("16 mm")))
sketch7.addConstraint(Sketcher.Constraint("DistanceX", -1, 1, 0, 3, Q("30 mm")))
sketch7.addConstraint(Sketcher.Constraint("DistanceY", -1, 1, 0, 3, Q("28.4 mm")))
sketch7.addConstraint(Sketcher.Constraint("DistanceX", 1, 1, 1, 2, Q("4.014673 mm")))
sketch7.setExpression("Constraints[26]", "Params.sketch7_radius")
sketch7.setExpression("Constraints[27]", "Params.sketch7_radius2")
pad7 = body.newObject("PartDesign::Pad", "Pad006")
pad7.Profile = sketch7
pad7.setExpression("Length", "Params.pad7_length")

doc.recompute()
